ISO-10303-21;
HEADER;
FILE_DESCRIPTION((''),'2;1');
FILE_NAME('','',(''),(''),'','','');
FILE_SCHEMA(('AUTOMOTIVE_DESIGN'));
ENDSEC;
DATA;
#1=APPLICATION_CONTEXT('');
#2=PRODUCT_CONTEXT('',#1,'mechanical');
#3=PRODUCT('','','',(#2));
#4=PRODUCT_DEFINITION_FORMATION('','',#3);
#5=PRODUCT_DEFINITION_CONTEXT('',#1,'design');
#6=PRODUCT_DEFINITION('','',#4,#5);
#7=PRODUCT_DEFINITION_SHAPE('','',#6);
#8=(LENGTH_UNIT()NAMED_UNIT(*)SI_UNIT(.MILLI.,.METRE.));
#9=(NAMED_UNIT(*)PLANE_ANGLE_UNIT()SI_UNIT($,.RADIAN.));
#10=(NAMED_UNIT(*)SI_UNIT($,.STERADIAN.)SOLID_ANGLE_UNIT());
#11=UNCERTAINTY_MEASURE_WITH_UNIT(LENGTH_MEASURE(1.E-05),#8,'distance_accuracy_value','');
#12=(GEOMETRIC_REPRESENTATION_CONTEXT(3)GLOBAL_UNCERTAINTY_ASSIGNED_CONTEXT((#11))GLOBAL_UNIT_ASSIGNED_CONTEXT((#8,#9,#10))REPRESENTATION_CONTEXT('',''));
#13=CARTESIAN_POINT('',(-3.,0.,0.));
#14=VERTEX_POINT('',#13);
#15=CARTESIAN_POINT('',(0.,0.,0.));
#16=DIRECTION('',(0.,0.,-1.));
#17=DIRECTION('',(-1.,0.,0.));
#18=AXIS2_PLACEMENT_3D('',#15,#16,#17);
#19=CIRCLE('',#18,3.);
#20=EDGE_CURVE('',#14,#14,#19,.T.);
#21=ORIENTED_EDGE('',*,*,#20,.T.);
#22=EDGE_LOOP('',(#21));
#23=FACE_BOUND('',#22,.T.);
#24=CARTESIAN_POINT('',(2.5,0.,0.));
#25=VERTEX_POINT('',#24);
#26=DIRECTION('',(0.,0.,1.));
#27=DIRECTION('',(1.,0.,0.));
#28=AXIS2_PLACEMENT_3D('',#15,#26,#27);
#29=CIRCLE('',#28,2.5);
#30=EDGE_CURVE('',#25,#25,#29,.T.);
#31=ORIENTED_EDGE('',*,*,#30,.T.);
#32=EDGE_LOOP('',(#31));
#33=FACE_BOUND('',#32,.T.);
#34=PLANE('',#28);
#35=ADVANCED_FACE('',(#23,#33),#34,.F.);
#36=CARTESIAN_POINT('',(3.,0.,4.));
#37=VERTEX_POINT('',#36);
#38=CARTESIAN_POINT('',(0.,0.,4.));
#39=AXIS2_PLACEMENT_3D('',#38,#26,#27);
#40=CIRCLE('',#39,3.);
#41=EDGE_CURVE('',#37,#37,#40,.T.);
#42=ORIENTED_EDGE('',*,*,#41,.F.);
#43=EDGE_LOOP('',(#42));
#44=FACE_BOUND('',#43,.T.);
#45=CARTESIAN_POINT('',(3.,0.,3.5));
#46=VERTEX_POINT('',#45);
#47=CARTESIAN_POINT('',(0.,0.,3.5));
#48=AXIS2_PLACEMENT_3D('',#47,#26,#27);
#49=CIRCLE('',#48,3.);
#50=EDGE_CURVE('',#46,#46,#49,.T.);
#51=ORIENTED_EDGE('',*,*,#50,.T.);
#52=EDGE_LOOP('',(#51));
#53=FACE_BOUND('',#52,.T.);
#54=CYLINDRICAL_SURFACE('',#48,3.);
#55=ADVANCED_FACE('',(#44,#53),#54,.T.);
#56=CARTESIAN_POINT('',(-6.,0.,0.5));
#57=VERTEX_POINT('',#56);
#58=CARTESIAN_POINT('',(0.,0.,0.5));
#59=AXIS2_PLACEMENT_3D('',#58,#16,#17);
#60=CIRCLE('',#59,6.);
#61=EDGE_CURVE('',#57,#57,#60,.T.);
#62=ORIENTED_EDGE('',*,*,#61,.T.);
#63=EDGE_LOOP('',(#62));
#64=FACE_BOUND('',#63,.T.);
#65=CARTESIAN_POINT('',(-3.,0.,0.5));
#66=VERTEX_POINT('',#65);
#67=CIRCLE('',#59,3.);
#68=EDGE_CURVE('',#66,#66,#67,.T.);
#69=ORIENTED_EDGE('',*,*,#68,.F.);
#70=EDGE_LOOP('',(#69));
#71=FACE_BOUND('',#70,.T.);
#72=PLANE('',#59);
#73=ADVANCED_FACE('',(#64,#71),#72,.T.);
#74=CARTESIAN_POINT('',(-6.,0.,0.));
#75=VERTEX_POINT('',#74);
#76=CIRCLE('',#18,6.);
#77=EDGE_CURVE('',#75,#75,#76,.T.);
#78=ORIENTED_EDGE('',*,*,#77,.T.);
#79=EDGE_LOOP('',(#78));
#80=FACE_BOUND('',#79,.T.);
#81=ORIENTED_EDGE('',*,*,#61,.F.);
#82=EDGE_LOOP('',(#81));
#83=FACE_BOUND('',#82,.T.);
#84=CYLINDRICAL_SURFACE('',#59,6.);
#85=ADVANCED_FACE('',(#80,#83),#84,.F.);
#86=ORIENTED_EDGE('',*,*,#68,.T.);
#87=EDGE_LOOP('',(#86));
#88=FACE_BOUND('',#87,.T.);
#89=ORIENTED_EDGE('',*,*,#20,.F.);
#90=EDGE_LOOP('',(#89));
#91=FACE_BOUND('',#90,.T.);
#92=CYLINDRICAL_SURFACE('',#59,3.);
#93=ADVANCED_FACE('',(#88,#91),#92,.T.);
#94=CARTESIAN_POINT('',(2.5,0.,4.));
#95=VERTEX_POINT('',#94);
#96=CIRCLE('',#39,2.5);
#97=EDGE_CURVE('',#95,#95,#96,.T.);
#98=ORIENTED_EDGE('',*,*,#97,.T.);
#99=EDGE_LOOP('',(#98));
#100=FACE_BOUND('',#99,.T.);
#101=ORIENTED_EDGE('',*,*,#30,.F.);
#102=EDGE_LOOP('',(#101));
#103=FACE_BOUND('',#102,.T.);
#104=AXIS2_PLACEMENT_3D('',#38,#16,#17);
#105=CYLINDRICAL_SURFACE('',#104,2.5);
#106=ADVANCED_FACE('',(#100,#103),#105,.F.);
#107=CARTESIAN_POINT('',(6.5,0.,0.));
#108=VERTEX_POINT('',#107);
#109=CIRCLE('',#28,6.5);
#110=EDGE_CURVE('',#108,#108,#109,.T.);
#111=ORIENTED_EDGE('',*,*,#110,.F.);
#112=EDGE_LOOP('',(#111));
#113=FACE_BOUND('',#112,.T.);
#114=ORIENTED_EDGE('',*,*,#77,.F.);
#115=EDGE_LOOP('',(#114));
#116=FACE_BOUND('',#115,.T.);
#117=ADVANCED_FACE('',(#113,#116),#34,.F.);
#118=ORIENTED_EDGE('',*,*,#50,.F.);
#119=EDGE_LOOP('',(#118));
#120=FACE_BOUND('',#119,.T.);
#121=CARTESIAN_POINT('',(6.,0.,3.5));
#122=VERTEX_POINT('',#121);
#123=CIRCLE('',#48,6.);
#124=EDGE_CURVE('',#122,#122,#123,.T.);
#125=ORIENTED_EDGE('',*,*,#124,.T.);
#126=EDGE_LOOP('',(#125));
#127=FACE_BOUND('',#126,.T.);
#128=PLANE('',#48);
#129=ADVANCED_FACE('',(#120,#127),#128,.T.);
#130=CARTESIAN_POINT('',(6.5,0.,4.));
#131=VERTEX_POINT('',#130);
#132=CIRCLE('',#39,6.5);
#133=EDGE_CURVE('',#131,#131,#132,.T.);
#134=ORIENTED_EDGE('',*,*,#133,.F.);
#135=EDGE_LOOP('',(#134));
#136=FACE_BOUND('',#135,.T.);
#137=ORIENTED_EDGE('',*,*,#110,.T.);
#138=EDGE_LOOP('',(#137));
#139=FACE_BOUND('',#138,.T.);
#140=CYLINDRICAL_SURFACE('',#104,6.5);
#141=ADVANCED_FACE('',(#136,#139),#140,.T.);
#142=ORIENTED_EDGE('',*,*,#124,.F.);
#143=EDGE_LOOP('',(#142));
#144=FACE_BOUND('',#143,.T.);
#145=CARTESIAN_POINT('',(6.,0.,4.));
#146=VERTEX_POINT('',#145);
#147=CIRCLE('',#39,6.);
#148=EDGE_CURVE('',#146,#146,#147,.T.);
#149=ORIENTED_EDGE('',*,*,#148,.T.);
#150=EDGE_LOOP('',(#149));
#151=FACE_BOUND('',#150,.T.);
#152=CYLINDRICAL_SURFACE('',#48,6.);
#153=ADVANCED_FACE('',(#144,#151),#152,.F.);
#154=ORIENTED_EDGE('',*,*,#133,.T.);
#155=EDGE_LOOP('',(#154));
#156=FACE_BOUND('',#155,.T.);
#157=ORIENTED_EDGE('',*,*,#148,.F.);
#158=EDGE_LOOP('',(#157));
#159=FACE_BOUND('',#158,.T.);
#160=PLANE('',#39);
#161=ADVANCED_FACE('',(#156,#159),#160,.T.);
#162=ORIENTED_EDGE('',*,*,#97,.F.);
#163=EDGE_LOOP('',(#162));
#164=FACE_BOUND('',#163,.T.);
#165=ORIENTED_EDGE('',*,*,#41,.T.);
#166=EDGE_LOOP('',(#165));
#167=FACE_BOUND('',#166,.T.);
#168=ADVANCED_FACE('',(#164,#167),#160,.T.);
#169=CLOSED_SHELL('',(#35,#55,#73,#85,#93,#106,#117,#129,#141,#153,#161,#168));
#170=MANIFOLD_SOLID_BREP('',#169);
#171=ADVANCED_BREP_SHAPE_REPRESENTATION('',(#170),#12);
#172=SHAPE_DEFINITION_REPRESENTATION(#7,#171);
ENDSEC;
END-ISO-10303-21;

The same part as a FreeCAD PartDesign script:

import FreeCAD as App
import Part
import Sketcher
from FreeCAD import Vector
Q = App.Units.Quantity

doc = App.newDocument("Part")
params = doc.addObject("Spreadsheet::Sheet", "Params")
for row, (alias, value) in enumerate([
    ("sketch1_diameter", "13 mm"),
    ("sketch1_diameter2", "5 mm"),
    ("pad1_length", "4 mm"),
    ("sketch2_diameter", "12 mm"),
    ("sketch2_diameter2", "6 mm"),
    ("pocket1_length", "0.5 mm"),
    ("sketch3_diameter", "12 mm"),
    ("sketch3_diameter2", "6 mm"),
    ("pocket2_length", "0.5 mm"),
], start=1):
    params.set(f"A{row}", alias)
    params.set(f"B{row}", "=" + value)
    params.setAlias(f"B{row}", alias)

body = doc.addObject("PartDesign::Body", "Body")

# Sketch on XY plane
sketch1 = doc.addObject("Sketcher::SketchObject", "Sketch")
body.addObject(sketch1)
sketch1.AttachmentSupport = (doc.XY_Plane, [""])
sketch1.MapMode = "FlatFace"
sketch1.addGeometry([
    Part.Circle(Vector(0, 0, 0), Vector(0, 0, 1), 6.5),
    Part.Circle(Vector(0, 0, 0), Vector(0, 0, 1), 2.5),
], False)
sketch1.addConstraint([
    Sketcher.Constraint("Coincident", 0, 3, -1, 1),
    Sketcher.Constraint("Coincident", 1, 3, -1, 1),
    Sketcher.Constraint("Diameter", 0, Q("13 mm")),
    Sketcher.Constraint("Diameter", 1, Q("5 mm")),
])
sketch1.setExpression("Constraints[2]", "Params.sketch1_diameter")
sketch1.setExpression("Constraints[3]", "Params.sketch1_diameter2")
pad1 = doc.addObject("PartDesign::Pad", "Pad")
body.addObject(pad1)
pad1.Profile = sketch1
pad1.setExpression("Length", "Params.pad1_length")

# Sketch on XY plane
sketch2 = doc.addObject("Sketcher::SketchObject", "Sketch001")
body.addObject(sketch2)
sketch2.AttachmentSupport = (doc.XY_Plane, [""])
sketch2.MapMode = "FlatFace"
sketch2.AttachmentOffset = App.Placement(Vector(0, 0, 4), App.Rotation())
sketch2.addGeometry([
    Part.Circle(Vector(0, 0, 0), Vector(0, 0, 1), 6),
    Part.Circle(Vector(0, 0, 0), Vector(0, 0, 1), 3),
], False)
sketch2.addConstraint([
    Sketcher.Constraint("Coincident", 0, 3, -1, 1),
    Sketcher.Constraint("Coincident", 1, 3, -1, 1),
    Sketcher.Constraint("Diameter", 0, Q("12 mm")),
    Sketcher.Constraint("Diameter", 1, Q("6 mm")),
])
sketch2.setExpression("Constraints[2]", "Params.sketch2_diameter")
sketch2.setExpression("Constraints[3]", "Params.sketch2_diameter2")
pocket1 = doc.addObject("PartDesign::Pocket", "Pocket")
body.addObject(pocket1)
pocket1.Profile = sketch2
pocket1.setExpression("Length", "Params.pocket1_length")

# Sketch on XY plane
sketch3 = doc.addObject("Sketcher::SketchObject", "Sketch002")
body.addObject(sketch3)
sketch3.AttachmentSupport = (doc.XY_Plane, [""])
sketch3.MapMode = "FlatFace"
sketch3.AttachmentOffset = App.Placement(Vector(0, 0, 0.5), App.Rotation())
sketch3.addGeometry([
    Part.Circle(Vector(0, 0, 0), Vector(0, 0, 1), 6),
    Part.Circle(Vector(0, 0, 0), Vector(0, 0, 1), 3),
], False)
sketch3.addConstraint([
    Sketcher.Constraint("Coincident", 0, 3, -1, 1),
    Sketcher.Constraint("Coincident", 1, 3, -1, 1),
    Sketcher.Constraint("Diameter", 0, Q("12 mm")),
    Sketcher.Constraint("Diameter", 1, Q("6 mm")),
])
sketch3.setExpression("Constraints[2]", "Params.sketch3_diameter")
sketch3.setExpression("Constraints[3]", "Params.sketch3_diameter2")
pocket2 = doc.addObject("PartDesign::Pocket", "Pocket001")
body.addObject(pocket2)
pocket2.Profile = sketch3
pocket2.setExpression("Length", "Params.pocket2_length")

doc.recompute()
